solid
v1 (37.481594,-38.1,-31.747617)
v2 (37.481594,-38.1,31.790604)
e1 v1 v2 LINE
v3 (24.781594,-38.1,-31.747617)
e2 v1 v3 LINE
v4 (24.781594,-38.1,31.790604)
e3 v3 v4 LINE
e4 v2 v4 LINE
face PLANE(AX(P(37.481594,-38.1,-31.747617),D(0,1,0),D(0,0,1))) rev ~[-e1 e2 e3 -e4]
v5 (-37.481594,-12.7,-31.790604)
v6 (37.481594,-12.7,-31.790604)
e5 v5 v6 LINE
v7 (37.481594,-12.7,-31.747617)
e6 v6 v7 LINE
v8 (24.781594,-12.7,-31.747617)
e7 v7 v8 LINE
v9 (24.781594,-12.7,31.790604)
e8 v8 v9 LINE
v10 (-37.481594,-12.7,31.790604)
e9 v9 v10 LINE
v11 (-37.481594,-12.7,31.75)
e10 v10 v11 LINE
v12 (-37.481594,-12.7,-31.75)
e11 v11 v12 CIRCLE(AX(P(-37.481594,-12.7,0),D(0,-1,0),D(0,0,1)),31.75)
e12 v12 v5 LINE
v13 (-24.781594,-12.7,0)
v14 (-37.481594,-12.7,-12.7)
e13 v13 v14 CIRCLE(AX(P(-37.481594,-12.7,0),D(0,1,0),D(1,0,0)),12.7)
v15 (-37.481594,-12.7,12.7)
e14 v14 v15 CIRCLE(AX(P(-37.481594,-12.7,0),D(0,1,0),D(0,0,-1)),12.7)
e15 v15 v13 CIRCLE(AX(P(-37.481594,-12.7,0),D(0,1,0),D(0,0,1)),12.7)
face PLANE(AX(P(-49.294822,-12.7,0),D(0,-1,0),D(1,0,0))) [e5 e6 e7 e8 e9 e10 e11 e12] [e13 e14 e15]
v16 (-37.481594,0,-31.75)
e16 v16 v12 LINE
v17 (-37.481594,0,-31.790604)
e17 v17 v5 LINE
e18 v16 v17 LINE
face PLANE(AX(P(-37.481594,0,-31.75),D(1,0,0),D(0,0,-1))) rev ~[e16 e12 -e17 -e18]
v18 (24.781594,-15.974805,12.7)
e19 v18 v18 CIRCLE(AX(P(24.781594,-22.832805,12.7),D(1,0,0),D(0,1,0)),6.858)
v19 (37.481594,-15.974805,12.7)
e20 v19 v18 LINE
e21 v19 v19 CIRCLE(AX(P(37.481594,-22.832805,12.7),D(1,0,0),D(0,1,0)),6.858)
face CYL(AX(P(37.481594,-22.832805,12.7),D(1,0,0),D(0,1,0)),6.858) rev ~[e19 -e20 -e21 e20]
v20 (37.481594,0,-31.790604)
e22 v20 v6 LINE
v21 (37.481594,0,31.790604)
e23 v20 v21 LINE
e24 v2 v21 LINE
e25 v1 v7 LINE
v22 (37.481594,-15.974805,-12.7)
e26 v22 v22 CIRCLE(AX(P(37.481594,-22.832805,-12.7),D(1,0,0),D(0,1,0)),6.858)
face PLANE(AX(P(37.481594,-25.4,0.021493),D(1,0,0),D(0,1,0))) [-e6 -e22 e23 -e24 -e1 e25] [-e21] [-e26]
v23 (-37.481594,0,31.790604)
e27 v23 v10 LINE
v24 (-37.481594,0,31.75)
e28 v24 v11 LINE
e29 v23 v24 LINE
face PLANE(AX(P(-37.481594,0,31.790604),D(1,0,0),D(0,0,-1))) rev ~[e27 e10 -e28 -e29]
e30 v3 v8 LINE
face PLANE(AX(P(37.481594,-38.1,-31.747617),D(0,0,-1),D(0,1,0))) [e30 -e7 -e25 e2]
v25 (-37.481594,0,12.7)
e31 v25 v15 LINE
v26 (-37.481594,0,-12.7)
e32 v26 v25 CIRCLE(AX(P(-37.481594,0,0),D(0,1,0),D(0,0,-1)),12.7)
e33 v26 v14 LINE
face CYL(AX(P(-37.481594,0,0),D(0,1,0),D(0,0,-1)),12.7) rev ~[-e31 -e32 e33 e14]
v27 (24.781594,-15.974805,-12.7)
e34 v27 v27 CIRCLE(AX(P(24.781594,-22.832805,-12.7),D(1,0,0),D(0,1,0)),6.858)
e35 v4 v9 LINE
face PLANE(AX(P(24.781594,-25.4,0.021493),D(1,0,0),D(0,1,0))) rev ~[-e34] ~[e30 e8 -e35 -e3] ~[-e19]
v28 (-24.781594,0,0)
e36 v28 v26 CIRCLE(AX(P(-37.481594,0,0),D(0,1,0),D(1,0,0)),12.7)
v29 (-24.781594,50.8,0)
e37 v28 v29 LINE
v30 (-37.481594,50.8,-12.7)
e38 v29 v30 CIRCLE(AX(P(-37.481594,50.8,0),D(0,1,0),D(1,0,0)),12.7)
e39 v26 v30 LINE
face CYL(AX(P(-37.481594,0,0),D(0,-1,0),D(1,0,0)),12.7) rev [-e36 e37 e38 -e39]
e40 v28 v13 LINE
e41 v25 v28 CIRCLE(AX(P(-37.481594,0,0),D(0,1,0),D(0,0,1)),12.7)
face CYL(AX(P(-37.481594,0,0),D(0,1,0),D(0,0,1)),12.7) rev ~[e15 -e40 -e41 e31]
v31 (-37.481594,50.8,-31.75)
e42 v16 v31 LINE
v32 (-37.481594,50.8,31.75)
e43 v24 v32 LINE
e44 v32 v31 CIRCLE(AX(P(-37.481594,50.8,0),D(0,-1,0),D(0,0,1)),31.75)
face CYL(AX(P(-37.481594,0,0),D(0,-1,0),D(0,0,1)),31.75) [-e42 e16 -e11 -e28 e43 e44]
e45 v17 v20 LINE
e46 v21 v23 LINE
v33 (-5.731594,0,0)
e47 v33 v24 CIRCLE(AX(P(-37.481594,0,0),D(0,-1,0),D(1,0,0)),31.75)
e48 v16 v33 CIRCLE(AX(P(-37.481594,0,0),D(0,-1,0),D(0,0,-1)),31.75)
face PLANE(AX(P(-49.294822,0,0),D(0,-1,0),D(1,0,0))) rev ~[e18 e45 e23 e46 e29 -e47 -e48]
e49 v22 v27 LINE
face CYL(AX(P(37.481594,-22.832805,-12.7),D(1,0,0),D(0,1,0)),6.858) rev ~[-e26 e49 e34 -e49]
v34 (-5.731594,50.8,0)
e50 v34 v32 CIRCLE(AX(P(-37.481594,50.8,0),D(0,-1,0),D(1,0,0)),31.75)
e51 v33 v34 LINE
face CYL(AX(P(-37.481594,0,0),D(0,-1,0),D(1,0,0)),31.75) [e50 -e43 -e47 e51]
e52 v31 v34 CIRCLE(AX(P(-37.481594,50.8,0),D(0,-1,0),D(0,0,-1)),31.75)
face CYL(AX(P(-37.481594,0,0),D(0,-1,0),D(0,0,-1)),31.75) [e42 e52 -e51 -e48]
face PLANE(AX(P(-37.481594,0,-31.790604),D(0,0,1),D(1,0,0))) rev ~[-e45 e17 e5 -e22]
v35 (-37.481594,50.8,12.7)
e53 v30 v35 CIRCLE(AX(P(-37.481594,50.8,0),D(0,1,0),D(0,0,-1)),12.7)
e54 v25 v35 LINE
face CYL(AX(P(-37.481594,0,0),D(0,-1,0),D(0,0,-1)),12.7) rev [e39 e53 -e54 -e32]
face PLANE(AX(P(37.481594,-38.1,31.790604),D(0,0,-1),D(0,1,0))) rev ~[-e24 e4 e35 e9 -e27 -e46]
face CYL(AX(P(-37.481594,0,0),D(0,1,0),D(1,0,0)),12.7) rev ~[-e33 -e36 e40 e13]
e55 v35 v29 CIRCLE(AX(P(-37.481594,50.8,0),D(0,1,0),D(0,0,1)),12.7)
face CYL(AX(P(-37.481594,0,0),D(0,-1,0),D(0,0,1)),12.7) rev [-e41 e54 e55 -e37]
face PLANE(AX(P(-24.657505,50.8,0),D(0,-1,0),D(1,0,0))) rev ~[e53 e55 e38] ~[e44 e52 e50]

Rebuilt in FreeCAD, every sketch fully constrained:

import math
import FreeCAD as App
import Part
import Sketcher
Q = App.Units.Quantity


def add_polygon(sketch, points):
    """Adds a closed chain of lines whose ends are joined by coincident constraints."""
    first, n = sketch.GeometryCount, len(points)
    for a, b in zip(points, points[1:] + points[:1]):
        sketch.addGeometry(Part.LineSegment(App.Vector(*a, 0), App.Vector(*b, 0)), False)
    for i in range(n):
        sketch.addConstraint(Sketcher.Constraint("Coincident", first + i, 2, first + (i + 1) % n, 1))

doc = App.newDocument("Part")
body = doc.addObject("PartDesign::Body", "Body")

# Sketch on XZ plane
sketch1 = body.newObject("Sketcher::SketchObject", "Sketch")
sketch1.AttachmentSupport = (doc.getObject("XZ_Plane"), [""])
sketch1.MapMode = "FlatFace"
sketch1.addGeometry(Part.ArcOfCircle(Part.Circle(App.Vector(-37.482, 0, 0), App.Vector(0, 0, 1), 31.75), math.radians(90), math.radians(270)), False)
sketch1.addGeometry(Part.LineSegment(App.Vector(-37.482, -31.75, 0), App.Vector(-37.482, -31.791, 0)), False)
sketch1.addGeometry(Part.LineSegment(App.Vector(-37.482, -31.791, 0), App.Vector(37.482, -31.791, 0)), False)
sketch1.addGeometry(Part.LineSegment(App.Vector(37.482, -31.791, 0), App.Vector(37.482, 31.791, 0)), False)
sketch1.addGeometry(Part.LineSegment(App.Vector(37.482, 31.791, 0), App.Vector(-37.482, 31.791, 0)), False)
sketch1.addGeometry(Part.LineSegment(App.Vector(-37.482, 31.791, 0), App.Vector(-37.482, 31.75, 0)), False)
sketch1.addGeometry(Part.ArcOfCircle(Part.Circle(App.Vector(-37.482, 0, 0), App.Vector(0, 0, 1), 12.7), math.radians(90), math.radians(270)), False)
sketch1.addGeometry(Part.ArcOfCircle(Part.Circle(App.Vector(-37.482, 0, 0), App.Vector(0, 0, 1), 12.7), math.radians(0), math.radians(90)), False)
sketch1.addGeometry(Part.ArcOfCircle(Part.Circle(App.Vector(-37.482, 0, 0), App.Vector(0, 0, 1), 12.7), math.radians(-90), math.radians(0)), False)
sketch1.addConstraint(Sketcher.Constraint("Coincident", 0, 2, 1, 1))
sketch1.addConstraint(Sketcher.Constraint("Coincident", 1, 2, 2, 1))
sketch1.addConstraint(Sketcher.Constraint("Coincident", 2, 2, 3, 1))
sketch1.addConstraint(Sketcher.Constraint("Coincident", 3, 2, 4, 1))
sketch1.addConstraint(Sketcher.Constraint("Coincident", 4, 2, 5, 1))
sketch1.addConstraint(Sketcher.Constraint("Coincident", 5, 2, 0, 1))
sketch1.addConstraint(Sketcher.Constraint("Tangent", 6, 1, 7, 2))
sketch1.addConstraint(Sketcher.Constraint("Tangent", 7, 1, 8, 2))
sketch1.addConstraint(Sketcher.Constraint("Tangent", 8, 1, 6, 2))
sketch1.addConstraint(Sketcher.Constraint("Vertical", 1))
sketch1.addConstraint(Sketcher.Constraint("Horizontal", 2))
sketch1.addConstraint(Sketcher.Constraint("Vertical", 3))
sketch1.addConstraint(Sketcher.Constraint("Horizontal", 4))
sketch1.addConstraint(Sketcher.Constraint("Vertical", 5))
sketch1.addConstraint(Sketcher.Constraint("Coincident", 6, 3, 0, 3))
sketch1.addConstraint(Sketcher.Constraint("Symmetric", 1, 2, 3, 2, -1, 1))
sketch1.addConstraint(Sketcher.Constraint("Symmetric", 0, 2, 5, 2, -1))
sketch1.addConstraint(Sketcher.Constraint("PointOnObject", 7, 1, -1))
sketch1.addConstraint(Sketcher.Constraint("Vertical", 8, 3, 0, 2))
sketch1.addConstraint(Sketcher.Constraint("Vertical", 5, 2, 6, 1))
sketch1.addConstraint(Sketcher.Constraint("Vertical", 6, 1, 8, 1))
sketch1.addConstraint(Sketcher.Constraint("Radius", 6, Q("0.5 in")))
sketch1.addConstraint(Sketcher.Constraint("Radius", 0, Q("1.25 in")))
sketch1.addConstraint(Sketcher.Constraint("DistanceX", 2, 1, 2, 2, Q("74.963189 mm")))
sketch1.addConstraint(Sketcher.Constraint("DistanceY", 1, 2, 1, 1, Q("0.040604 mm")))
pad1 = body.newObject("PartDesign::Pad", "Pad")
pad1.Profile = sketch1
pad1.Length = Q("0.5 in")

# Sketch on XZ plane
sketch2 = body.newObject("Sketcher::SketchObject", "Sketch001")
sketch2.AttachmentSupport = (doc.getObject("XZ_Plane"), [""])
sketch2.MapMode = "FlatFace"
sketch2.addGeometry(Part.ArcOfCircle(Part.Circle(App.Vector(-37, 0, 0), App.Vector(0, 0, 1), 32), math.radians(-90), math.radians(0)), False)
sketch2.addGeometry(Part.ArcOfCircle(Part.Circle(App.Vector(-37, 0, 0), App.Vector(0, 0, 1), 32), math.radians(0), math.radians(90)), False)
sketch2.addGeometry(Part.ArcOfCircle(Part.Circle(App.Vector(-37, 0, 0), App.Vector(0, 0, 1), 32), math.radians(90), math.radians(270)), False)
sketch2.addGeometry(Part.ArcOfCircle(Part.Circle(App.Vector(-37, 0, 0), App.Vector(0, 0, 1), 13), math.radians(0), math.radians(90)), False)
sketch2.addGeometry(Part.ArcOfCircle(Part.Circle(App.Vector(-37, 0, 0), App.Vector(0, 0, 1), 13), math.radians(-90), math.radians(0)), False)
sketch2.addGeometry(Part.ArcOfCircle(Part.Circle(App.Vector(-37, 0, 0), App.Vector(0, 0, 1), 13), math.radians(90), math.radians(270)), False)
sketch2.addConstraint(Sketcher.Constraint("Tangent", 0, 2, 1, 1))
sketch2.addConstraint(Sketcher.Constraint("Tangent", 1, 2, 2, 1))
sketch2.addConstraint(Sketcher.Constraint("Tangent", 2, 2, 0, 1))
sketch2.addConstraint(Sketcher.Constraint("Tangent", 3, 1, 4, 2))
sketch2.addConstraint(Sketcher.Constraint("Tangent", 4, 1, 5, 2))
sketch2.addConstraint(Sketcher.Constraint("Tangent", 5, 1, 3, 2))
sketch2.addConstraint(Sketcher.Constraint("Coincident", 3, 3, 0, 3))
sketch2.addConstraint(Sketcher.Constraint("Symmetric", 1, 2, 2, 2, -1))
sketch2.addConstraint(Sketcher.Constraint("PointOnObject", 0, 2, -1))
sketch2.addConstraint(Sketcher.Constraint("PointOnObject", 3, 1, -1))
sketch2.addConstraint(Sketcher.Constraint("Vertical", 5, 3, 1, 2))
sketch2.addConstraint(Sketcher.Constraint("Vertical", 2, 2, 4, 1))
sketch2.addConstraint(Sketcher.Constraint("Vertical", 4, 1, 5, 1))
sketch2.addConstraint(Sketcher.Constraint("Radius", 3, Q("0.5 in")))
sketch2.addConstraint(Sketcher.Constraint("Radius", 0, Q("1.25 in")))
sketch2.addConstraint(Sketcher.Constraint("DistanceX", 0, 3, -1, 1, Q("37.481594 mm")))
pad2 = body.newObject("PartDesign::Pad", "Pad001")
pad2.Profile = sketch2
pad2.Length = Q("2 in")
pad2.Reversed = True

# Sketch on YZ plane
sketch3 = body.newObject("Sketcher::SketchObject", "Sketch002")
sketch3.AttachmentSupport = (doc.getObject("YZ_Plane"), [""])
sketch3.MapMode = "FlatFace"
sketch3.AttachmentOffset = App.Placement(App.Vector(0, 0, 37.481594), App.Rotation())
add_polygon(sketch3, [(-38, 32), (-38, -32), (-13, -32), (-13, 32)])  # lines 0-3
sketch3.addGeometry(Part.Circle(App.Vector(-23, -13, 0), App.Vector(0, 0, 1), 7), False)  # 4
sketch3.addGeometry(Part.Circle(App.Vector(-23, 13, 0), App.Vector(0, 0, 1), 7), False)  # 5
sketch3.addConstraint(Sketcher.Constraint("Vertical", 0))
sketch3.addConstraint(Sketcher.Constraint("Horizontal", 1))
sketch3.addConstraint(Sketcher.Constraint("Vertical", 2))
sketch3.addConstraint(Sketcher.Constraint("Horizontal", 3))
sketch3.addConstraint(Sketcher.Constraint("Equal", 4, 5))
sketch3.addConstraint(Sketcher.Constraint("Symmetric", 4, 3, 5, 3, -1))
sketch3.addConstraint(Sketcher.Constraint("Diameter", 4, Q("0.54 in")))
sketch3.addConstraint(Sketcher.Constraint("DistanceX", 1, 1, 1, 2, Q("1 in")))
sketch3.addConstraint(Sketcher.Constraint("DistanceY", 4, 3, 5, 3, Q("1 in")))
sketch3.addConstraint(Sketcher.Constraint("DistanceX", 0, 2, -1, 1, Q("1.5 in")))
sketch3.addConstraint(Sketcher.Constraint("DistanceY", 0, 2, 0, 1, Q("63.538221 mm")))
sketch3.addConstraint(Sketcher.Constraint("DistanceX", 4, 3, -1, 1, Q("22.832805 mm")))
sketch3.addConstraint(Sketcher.Constraint("DistanceY", 0, 2, -1, 1, Q("31.747617 mm")))
pad3 = body.newObject("PartDesign::Pad", "Pad002")
pad3.Profile = sketch3
pad3.Length = Q("0.5 in")
pad3.Reversed = True

doc.recompute()
